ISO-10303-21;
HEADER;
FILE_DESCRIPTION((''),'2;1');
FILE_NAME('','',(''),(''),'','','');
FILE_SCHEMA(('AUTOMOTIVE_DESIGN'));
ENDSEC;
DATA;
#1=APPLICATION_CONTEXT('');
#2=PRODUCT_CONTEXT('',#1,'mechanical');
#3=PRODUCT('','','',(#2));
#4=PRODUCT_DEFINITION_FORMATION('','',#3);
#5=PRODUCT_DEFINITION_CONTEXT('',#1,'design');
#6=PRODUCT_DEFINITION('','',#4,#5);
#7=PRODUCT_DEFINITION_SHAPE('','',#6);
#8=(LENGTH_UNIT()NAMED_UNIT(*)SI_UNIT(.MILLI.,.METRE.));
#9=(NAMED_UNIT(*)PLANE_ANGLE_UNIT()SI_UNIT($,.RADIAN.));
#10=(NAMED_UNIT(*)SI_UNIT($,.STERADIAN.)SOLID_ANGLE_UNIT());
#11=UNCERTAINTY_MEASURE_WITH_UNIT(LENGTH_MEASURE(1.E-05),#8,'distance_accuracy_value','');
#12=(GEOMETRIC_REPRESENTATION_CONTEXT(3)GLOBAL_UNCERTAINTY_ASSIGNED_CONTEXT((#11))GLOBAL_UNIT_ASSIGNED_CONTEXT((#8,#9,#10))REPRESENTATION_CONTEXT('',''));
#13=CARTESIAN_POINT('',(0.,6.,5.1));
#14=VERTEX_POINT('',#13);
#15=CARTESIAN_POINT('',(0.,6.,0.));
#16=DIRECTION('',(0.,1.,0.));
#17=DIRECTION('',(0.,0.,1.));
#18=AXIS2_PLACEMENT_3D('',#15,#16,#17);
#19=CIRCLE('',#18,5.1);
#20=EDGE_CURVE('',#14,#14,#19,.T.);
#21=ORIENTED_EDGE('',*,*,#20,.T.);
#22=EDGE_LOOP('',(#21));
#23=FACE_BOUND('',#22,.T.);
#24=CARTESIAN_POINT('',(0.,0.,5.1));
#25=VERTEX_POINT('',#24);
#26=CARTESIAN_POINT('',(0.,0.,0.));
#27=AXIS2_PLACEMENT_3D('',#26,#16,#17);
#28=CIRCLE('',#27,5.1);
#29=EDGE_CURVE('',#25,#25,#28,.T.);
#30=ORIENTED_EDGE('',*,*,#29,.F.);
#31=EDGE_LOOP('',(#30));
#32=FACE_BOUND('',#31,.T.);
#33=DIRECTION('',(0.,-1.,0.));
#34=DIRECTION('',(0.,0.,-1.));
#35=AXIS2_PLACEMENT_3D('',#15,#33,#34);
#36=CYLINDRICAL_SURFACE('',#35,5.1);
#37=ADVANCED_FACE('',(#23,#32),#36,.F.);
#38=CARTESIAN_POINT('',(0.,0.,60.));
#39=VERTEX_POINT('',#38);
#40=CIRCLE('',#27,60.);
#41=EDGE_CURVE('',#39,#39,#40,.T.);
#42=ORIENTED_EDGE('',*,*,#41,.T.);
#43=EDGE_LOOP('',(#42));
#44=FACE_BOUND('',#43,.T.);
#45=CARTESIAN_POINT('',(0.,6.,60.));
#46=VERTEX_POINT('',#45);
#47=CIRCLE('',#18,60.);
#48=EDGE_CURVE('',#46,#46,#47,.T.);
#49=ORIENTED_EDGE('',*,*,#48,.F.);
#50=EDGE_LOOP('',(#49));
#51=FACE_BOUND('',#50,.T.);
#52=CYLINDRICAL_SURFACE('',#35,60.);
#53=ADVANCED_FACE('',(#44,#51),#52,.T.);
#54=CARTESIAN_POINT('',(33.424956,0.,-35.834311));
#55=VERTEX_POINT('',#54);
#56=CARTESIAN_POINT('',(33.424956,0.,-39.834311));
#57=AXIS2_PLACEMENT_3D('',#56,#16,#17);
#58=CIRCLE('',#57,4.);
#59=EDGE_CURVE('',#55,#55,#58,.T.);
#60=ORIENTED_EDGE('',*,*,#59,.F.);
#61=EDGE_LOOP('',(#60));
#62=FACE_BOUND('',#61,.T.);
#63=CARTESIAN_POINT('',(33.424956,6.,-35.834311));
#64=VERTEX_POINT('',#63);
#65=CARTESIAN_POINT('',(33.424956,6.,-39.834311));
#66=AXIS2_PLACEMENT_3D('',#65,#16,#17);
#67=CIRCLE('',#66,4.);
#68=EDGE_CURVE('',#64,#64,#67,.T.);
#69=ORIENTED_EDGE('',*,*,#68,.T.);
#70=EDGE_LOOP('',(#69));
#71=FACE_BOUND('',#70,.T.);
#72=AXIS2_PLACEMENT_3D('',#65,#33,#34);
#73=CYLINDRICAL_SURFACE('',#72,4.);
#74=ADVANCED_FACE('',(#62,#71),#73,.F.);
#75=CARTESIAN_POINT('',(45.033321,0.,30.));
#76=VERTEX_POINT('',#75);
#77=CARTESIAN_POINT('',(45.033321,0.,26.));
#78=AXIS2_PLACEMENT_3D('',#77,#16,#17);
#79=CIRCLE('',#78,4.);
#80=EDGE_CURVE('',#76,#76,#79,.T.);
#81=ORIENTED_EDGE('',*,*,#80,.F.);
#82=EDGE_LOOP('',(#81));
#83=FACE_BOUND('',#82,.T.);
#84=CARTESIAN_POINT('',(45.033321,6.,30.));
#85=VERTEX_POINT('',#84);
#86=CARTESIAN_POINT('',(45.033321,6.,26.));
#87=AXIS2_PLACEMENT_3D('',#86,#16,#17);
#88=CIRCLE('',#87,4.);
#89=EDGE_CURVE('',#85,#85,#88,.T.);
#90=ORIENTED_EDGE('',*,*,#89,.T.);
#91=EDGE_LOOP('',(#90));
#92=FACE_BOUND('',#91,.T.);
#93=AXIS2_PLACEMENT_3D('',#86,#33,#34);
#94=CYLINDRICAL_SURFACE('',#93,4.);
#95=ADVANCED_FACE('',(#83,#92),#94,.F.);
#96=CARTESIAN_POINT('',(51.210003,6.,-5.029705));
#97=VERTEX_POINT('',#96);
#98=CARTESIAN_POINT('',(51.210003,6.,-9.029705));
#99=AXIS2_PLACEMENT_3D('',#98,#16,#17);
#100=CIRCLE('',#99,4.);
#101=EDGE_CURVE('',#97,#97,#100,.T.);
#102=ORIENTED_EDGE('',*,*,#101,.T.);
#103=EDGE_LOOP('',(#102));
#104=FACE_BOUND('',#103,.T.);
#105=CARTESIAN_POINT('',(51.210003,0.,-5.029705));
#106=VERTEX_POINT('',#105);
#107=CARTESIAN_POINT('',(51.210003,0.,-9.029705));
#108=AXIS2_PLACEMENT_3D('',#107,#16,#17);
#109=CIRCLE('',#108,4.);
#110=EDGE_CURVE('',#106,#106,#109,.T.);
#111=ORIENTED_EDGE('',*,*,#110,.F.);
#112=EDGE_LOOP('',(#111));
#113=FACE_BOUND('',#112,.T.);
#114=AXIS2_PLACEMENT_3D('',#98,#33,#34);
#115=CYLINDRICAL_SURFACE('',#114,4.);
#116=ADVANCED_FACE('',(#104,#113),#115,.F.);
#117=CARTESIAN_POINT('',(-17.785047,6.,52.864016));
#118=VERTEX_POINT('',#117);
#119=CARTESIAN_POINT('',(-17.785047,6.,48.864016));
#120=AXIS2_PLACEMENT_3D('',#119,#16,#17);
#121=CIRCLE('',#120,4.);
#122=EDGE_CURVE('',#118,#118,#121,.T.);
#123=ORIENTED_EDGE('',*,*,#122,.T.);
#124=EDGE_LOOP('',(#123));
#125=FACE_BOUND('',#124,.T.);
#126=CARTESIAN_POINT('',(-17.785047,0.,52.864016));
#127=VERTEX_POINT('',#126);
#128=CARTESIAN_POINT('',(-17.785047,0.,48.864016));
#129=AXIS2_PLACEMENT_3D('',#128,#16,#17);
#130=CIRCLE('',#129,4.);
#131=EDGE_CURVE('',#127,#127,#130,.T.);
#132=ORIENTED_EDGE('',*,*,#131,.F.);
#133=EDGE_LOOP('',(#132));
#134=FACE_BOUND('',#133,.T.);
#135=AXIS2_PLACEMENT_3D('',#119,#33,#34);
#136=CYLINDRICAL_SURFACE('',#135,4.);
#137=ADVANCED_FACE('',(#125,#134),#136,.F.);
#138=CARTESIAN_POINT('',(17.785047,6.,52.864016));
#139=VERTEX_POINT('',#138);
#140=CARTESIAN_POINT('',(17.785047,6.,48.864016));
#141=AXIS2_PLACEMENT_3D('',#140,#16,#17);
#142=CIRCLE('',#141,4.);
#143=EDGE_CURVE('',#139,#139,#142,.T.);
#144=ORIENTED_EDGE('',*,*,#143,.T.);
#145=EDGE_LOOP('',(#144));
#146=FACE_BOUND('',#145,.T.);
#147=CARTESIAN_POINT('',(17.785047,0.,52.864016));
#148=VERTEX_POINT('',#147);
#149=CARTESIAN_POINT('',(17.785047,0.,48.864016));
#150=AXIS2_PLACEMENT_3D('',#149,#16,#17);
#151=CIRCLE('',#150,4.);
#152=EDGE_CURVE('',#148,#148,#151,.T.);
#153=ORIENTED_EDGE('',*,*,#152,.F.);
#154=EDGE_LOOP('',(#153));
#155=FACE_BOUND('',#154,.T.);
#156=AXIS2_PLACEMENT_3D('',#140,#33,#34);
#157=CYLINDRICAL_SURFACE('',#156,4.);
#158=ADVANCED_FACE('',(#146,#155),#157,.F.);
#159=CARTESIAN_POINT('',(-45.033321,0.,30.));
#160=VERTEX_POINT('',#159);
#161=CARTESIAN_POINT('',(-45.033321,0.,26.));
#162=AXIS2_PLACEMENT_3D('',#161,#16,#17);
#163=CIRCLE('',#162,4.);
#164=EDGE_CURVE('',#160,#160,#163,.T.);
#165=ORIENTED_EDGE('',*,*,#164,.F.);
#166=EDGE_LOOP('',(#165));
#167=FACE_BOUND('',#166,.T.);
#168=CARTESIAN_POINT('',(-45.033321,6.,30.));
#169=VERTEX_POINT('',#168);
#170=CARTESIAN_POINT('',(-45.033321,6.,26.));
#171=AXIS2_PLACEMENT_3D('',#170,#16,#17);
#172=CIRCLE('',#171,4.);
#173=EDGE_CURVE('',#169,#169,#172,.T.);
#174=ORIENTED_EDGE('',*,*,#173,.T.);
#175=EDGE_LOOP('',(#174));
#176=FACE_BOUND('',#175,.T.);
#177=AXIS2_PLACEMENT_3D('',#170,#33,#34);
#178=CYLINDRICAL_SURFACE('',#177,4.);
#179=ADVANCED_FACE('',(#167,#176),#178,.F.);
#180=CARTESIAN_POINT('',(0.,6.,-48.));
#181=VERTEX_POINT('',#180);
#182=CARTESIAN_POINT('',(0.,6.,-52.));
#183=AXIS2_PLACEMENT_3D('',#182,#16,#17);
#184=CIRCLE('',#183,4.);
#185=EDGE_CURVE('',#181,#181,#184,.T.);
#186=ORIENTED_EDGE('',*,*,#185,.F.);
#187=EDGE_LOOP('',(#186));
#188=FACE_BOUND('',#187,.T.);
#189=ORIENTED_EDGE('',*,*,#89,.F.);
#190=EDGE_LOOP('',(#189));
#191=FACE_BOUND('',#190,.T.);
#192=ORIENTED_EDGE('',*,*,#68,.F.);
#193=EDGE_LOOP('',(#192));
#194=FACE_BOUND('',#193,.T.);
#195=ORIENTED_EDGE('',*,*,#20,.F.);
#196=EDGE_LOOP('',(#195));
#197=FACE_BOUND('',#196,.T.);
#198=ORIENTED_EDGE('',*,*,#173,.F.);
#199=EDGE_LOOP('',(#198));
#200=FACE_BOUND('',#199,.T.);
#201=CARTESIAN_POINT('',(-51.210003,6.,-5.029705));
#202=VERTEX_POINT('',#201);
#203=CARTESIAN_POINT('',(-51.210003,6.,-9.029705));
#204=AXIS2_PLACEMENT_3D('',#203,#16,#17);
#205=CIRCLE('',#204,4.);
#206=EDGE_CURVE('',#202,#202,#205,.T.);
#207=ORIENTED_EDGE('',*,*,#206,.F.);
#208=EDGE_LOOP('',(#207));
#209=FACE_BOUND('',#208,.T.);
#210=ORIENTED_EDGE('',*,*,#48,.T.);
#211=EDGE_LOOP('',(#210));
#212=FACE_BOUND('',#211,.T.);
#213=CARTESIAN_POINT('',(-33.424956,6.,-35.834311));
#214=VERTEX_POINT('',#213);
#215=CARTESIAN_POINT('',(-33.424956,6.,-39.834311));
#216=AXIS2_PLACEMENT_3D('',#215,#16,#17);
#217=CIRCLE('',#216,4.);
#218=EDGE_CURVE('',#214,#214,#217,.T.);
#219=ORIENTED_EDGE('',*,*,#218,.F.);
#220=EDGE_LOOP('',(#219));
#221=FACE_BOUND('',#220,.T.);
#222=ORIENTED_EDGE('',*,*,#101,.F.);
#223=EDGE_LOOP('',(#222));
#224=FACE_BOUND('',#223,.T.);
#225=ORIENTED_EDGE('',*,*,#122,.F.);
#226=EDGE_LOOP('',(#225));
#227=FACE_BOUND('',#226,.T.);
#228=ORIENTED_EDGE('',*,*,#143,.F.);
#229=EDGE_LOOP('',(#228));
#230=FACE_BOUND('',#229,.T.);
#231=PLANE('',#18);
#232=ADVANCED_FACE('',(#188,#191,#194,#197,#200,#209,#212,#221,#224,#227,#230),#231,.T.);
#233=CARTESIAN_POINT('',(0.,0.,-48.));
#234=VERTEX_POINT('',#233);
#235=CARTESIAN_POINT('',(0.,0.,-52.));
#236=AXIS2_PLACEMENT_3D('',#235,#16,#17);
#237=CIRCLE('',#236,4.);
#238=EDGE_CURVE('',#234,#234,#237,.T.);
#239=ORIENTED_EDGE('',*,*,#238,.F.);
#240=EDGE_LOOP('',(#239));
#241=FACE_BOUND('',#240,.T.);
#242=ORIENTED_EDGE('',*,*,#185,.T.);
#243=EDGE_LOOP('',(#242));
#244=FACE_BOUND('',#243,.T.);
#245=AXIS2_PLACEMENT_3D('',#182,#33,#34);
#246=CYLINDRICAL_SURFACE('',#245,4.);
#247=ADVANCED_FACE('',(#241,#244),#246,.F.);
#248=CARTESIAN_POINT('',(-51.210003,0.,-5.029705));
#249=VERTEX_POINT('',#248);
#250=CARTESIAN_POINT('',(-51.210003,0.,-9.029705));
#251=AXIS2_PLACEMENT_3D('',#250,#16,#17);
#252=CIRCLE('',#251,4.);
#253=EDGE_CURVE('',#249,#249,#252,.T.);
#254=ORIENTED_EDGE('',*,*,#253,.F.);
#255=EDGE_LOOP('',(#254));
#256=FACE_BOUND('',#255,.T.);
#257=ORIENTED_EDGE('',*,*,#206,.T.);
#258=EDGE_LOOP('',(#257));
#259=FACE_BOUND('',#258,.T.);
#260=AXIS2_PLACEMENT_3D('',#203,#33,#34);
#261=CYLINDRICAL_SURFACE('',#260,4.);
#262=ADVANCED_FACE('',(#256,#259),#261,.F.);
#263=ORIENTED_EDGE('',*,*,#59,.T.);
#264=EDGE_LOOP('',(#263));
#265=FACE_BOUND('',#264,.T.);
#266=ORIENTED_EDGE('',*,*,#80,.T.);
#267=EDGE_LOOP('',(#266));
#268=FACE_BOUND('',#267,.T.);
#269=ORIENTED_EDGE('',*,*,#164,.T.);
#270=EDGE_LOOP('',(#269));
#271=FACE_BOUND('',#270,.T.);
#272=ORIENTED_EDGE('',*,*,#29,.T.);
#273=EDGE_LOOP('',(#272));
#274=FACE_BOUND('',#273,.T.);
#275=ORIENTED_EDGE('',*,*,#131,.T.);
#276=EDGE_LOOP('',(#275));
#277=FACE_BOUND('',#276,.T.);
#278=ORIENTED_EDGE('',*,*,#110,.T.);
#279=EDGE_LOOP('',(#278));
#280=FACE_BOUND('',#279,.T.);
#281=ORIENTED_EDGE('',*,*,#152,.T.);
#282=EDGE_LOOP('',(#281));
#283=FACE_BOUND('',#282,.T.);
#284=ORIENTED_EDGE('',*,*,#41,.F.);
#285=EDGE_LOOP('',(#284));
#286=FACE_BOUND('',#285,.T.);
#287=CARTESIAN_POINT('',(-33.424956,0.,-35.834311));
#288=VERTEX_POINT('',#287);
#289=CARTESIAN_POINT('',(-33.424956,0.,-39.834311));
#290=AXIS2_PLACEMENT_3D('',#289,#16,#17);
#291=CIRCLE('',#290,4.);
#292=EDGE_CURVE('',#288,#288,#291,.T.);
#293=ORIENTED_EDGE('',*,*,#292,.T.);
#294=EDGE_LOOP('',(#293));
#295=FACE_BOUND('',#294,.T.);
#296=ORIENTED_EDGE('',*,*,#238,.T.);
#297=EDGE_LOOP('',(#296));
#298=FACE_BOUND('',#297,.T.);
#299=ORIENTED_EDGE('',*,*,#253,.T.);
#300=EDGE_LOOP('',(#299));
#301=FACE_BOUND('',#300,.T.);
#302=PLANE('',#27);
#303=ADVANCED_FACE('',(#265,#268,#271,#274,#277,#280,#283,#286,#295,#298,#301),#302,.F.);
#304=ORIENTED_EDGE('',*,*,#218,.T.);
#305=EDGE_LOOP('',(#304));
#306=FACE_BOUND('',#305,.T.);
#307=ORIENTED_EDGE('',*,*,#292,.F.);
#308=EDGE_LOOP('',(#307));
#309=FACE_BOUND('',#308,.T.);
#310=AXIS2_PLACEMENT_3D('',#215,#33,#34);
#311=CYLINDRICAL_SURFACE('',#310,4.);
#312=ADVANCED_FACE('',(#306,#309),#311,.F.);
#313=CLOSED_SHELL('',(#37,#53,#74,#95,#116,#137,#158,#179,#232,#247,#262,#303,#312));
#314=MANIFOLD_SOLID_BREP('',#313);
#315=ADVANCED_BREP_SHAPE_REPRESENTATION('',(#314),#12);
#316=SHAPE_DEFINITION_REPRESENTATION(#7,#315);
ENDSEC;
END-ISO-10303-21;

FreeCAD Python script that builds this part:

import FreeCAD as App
import Part
import Sketcher

V = App.Vector

doc = App.newDocument("Part")
params = doc.addObject("Spreadsheet::Sheet", "Params")
for row, (alias, value) in enumerate([
    ("sketch1_diameter", "120 mm"),
    ("sketch1_diameter2", "8 mm"),
    ("sketch1_diameter3", "10.2 mm"),
    ("pad1_length", "6 mm"),
], start=1):
    params.set(f"A{row}", alias)
    params.set(f"B{row}", "=" + value)
    params.setAlias(f"B{row}", alias)

body = doc.addObject("PartDesign::Body", "Body")

sketch1 = doc.addObject("Sketcher::SketchObject", "Sketch")
body.addObject(sketch1)
sketch1.AttachmentSupport = (doc.XZ_Plane, [""])
sketch1.MapMode = "FlatFace"
sketch1.addGeometry([
    Part.Circle(V(0, 0, 0), V(0, 0, 1), 60),
    Part.Circle(V(-33.4, -39.8, 0), V(0, 0, 1), 4),
    Part.Circle(V(-51.2, -9, 0), V(0, 0, 1), 4),
    Part.Circle(V(0, -52, 0), V(0, 0, 1), 4),
    Part.Circle(V(-45, 26, 0), V(0, 0, 1), 4),
    Part.Circle(V(-17.8, 48.9, 0), V(0, 0, 1), 4),
    Part.Circle(V(33.4, -39.8, 0), V(0, 0, 1), 4),
    Part.Circle(V(51.2, -9, 0), V(0, 0, 1), 4),
    Part.Circle(V(0, 0, 0), V(0, 0, 1), 5.1),
    Part.Circle(V(17.8, 48.9, 0), V(0, 0, 1), 4),
    Part.Circle(V(45, 26, 0), V(0, 0, 1), 4),
], False)
sketch1.addConstraint([
    Sketcher.Constraint("Coincident", 0, 3, -1, 1),
    Sketcher.Constraint("Coincident", 8, 3, -1, 1),
    Sketcher.Constraint("Equal", 1, 2),
    Sketcher.Constraint("Equal", 2, 3),
    Sketcher.Constraint("Equal", 3, 4),
    Sketcher.Constraint("Equal", 4, 5),
    Sketcher.Constraint("Equal", 5, 6),
    Sketcher.Constraint("Equal", 6, 7),
    Sketcher.Constraint("Equal", 7, 9),
    Sketcher.Constraint("Equal", 9, 10),
    Sketcher.Constraint("Symmetric", 1, 3, 6, 3, -2),
    Sketcher.Constraint("Symmetric", 2, 3, 7, 3, -2),
    Sketcher.Constraint("Symmetric", 5, 3, 9, 3, -2),
    Sketcher.Constraint("Symmetric", 4, 3, 10, 3, -2),
    Sketcher.Constraint("PointOnObject", 3, 3, -2),
    Sketcher.Constraint("Diameter", 0, 120.0),
    Sketcher.Constraint("Diameter", 1, 8.0),
    Sketcher.Constraint("Diameter", 8, 10.2),
    Sketcher.Constraint("DistanceY", 3, 3, -1, 1, 52.0),
    Sketcher.Constraint("DistanceY", -1, 1, 4, 3, 26.0),
    Sketcher.Constraint("DistanceY", 1, 3, -1, 1, 39.834311),
    Sketcher.Constraint("DistanceX", 4, 3, -1, 1, 45.033321),
    Sketcher.Constraint("DistanceY", 2, 3, 5, 3, 57.893722),
    Sketcher.Constraint("DistanceX", 1, 3, 5, 3, 15.639908),
    Sketcher.Constraint("DistanceX", 1, 3, 6, 3, 66.849911),
    Sketcher.Constraint("DistanceX", 2, 3, 6, 3, 84.634959),
    Sketcher.Constraint("DistanceY", 2, 3, -1, 1, 9.029705),
])
sketch1.setExpression("Constraints[15]", "Params.sketch1_diameter")
sketch1.setExpression("Constraints[16]", "Params.sketch1_diameter2")
sketch1.setExpression("Constraints[17]", "Params.sketch1_diameter3")
pad1 = doc.addObject("PartDesign::Pad", "Pad")
body.addObject(pad1)
pad1.Profile = sketch1
pad1.setExpression("Length", "Params.pad1_length")
pad1.Reversed = True

doc.recompute()
